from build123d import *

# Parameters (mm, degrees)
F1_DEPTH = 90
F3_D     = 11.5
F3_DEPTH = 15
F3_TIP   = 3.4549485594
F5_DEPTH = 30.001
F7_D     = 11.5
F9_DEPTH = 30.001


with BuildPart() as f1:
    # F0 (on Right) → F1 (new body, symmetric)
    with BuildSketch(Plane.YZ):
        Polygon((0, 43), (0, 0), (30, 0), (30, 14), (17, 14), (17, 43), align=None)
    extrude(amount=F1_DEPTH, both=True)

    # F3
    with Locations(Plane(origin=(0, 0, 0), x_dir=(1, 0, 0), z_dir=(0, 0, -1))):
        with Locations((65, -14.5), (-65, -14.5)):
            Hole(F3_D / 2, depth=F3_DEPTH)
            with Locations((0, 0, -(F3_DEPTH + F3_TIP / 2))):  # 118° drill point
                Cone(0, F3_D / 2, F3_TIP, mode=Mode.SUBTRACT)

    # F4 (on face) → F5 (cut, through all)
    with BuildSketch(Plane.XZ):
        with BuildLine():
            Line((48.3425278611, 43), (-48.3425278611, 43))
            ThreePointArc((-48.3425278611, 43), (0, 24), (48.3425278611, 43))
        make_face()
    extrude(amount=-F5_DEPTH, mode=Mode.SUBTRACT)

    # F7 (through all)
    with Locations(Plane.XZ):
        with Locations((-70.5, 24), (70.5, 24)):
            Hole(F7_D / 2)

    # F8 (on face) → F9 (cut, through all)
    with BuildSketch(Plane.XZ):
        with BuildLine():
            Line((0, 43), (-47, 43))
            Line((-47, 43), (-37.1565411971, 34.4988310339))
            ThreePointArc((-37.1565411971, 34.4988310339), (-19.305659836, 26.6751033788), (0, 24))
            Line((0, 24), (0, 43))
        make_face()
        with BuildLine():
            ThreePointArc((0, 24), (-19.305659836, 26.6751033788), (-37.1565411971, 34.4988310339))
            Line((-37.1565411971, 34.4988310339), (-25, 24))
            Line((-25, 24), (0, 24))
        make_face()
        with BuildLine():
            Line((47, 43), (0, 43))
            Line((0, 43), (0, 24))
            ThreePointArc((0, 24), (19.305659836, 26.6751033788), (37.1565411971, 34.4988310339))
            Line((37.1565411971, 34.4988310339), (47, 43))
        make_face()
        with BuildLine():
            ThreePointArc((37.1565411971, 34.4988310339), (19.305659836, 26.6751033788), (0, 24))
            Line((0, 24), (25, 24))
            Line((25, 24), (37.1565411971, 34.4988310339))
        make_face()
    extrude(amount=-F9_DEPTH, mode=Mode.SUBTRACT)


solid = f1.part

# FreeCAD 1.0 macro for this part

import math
import FreeCAD as App
import Part
import Sketcher

V = App.Vector


def add_polygon(sketch, points):
    """Adds a closed chain of lines whose ends are joined by coincident constraints."""
    first, n = sketch.GeometryCount, len(points)
    for a, b in zip(points, points[1:] + points[:1]):
        sketch.addGeometry(Part.LineSegment(App.Vector(*a, 0), App.Vector(*b, 0)), False)
    for i in range(n):
        sketch.addConstraint(Sketcher.Constraint("Coincident", first + i, 2, first + (i + 1) % n, 1))

doc = App.newDocument("Part")
body = doc.addObject("PartDesign::Body", "Body")

# Sketch on YZ plane
sketch1 = body.newObject("Sketcher::SketchObject", "Sketch")
sketch1.AttachmentSupport = (doc.getObject("YZ_Plane"), [""])
sketch1.MapMode = "FlatFace"
add_polygon(sketch1, [(0, 43), (0, 0), (30, 0), (30, 14), (17, 14), (17, 43)])  # lines 0-5
sketch1.addConstraint([
    Sketcher.Constraint("Vertical", 0),
    Sketcher.Constraint("Horizontal", 1),
    Sketcher.Constraint("Vertical", 2),
    Sketcher.Constraint("Horizontal", 3),
    Sketcher.Constraint("Vertical", 4),
    Sketcher.Constraint("Horizontal", 5),
    Sketcher.Constraint("Coincident", 0, 2, -1, 1),
    Sketcher.Constraint("DistanceX", 1, 1, 1, 2, 30.0),
    Sketcher.Constraint("DistanceX", 3, 2, 3, 1, 13.0),
    Sketcher.Constraint("DistanceY", 0, 2, 0, 1, 43.0),
    Sketcher.Constraint("DistanceY", 2, 1, 2, 2, 14.0),
])
pad1 = body.newObject("PartDesign::Pad", "Pad")
pad1.Profile = sketch1
pad1.Length = 180
pad1.Midplane = True

# Sketch on XY plane
sketch2 = body.newObject("Sketcher::SketchObject", "Sketch001")
sketch2.AttachmentSupport = (doc.getObject("XY_Plane"), [""])
sketch2.MapMode = "FlatFace"
sketch2.addGeometry([
    Part.Circle(V(65, 14.5, 0), V(0, 0, 1), 5.75),
    Part.Circle(V(-65, 14.5, 0), V(0, 0, 1), 5.75),
], False)
sketch2.addConstraint([
    Sketcher.Constraint("Equal", 0, 1),
    Sketcher.Constraint("Symmetric", 0, 3, 1, 3, -2),
    Sketcher.Constraint("Diameter", 0, 11.5),
    Sketcher.Constraint("DistanceX", -1, 1, 0, 3, 65.0),
    Sketcher.Constraint("DistanceY", -1, 1, 0, 3, 14.5),
])
doc.recompute()
hole = body.newObject("PartDesign::Hole", "Hole")
hole.Profile = sketch2
hole.ThreadType = "None"
hole.Diameter = 11.5
hole.DepthType = "Dimension"
hole.Depth = 15
hole.DrillPoint = "Angled"
hole.DrillPointAngle = 118
hole.Reversed = True

# Sketch on XZ plane
sketch3 = body.newObject("Sketcher::SketchObject", "Sketch002")
sketch3.AttachmentSupport = (doc.getObject("XZ_Plane"), [""])
sketch3.MapMode = "FlatFace"
sketch3.addGeometry([
    Part.LineSegment(V(48.342528, 43, 0), V(-48.342528, 43, 0)),
    Part.ArcOfCircle(Part.Circle(V(0, 95, 0), V(0, 0, 1), 71), math.radians(-132.9125), math.radians(-47.0875)),
], False)
sketch3.addConstraint([
    Sketcher.Constraint("Coincident", 0, 1, 1, 2),
    Sketcher.Constraint("Coincident", 1, 1, 0, 2),
    Sketcher.Constraint("Horizontal", 0),
    Sketcher.Constraint("PointOnObject", 1, 3, -2),
    Sketcher.Constraint("Radius", 1, 71.0),
    Sketcher.Constraint("DistanceY", -1, 1, 1, 3, 95.0),
    Sketcher.Constraint("DistanceY", -1, 1, 0, 1, 43.0),
])
pocket1 = body.newObject("PartDesign::Pocket", "Pocket")
pocket1.Profile = sketch3
pocket1.Type = "ThroughAll"

# Sketch on XZ plane
sketch4 = body.newObject("Sketcher::SketchObject", "Sketch003")
sketch4.AttachmentSupport = (doc.getObject("XZ_Plane"), [""])
sketch4.MapMode = "FlatFace"
sketch4.addGeometry([
    Part.Circle(V(-70.5, 24, 0), V(0, 0, 1), 5.75),
    Part.Circle(V(70.5, 24, 0), V(0, 0, 1), 5.75),
], False)
sketch4.addConstraint([
    Sketcher.Constraint("Equal", 0, 1),
    Sketcher.Constraint("Symmetric", 0, 3, 1, 3, -2),
    Sketcher.Constraint("Diameter", 0, 11.5),
    Sketcher.Constraint("DistanceY", -1, 1, 0, 3, 24.0),
    Sketcher.Constraint("DistanceX", 0, 3, 1, 3, 141.0),
])
doc.recompute()
hole2 = body.newObject("PartDesign::Hole", "Hole001")
hole2.Profile = sketch4
hole2.ThreadType = "None"
hole2.Diameter = 11.5
hole2.DepthType = "ThroughAll"

# Sketch on XZ plane
sketch5 = body.newObject("Sketcher::SketchObject", "Sketch004")
sketch5.AttachmentSupport = (doc.getObject("XZ_Plane"), [""])
sketch5.MapMode = "FlatFace"
add_polygon(sketch5, [(-47, 43), (-37.156541, 34.498831), (-25, 24), (25, 24), (37.156541, 34.498831), (47, 43)])  # lines 0-5
sketch5.addConstraint([
    Sketcher.Constraint("Horizontal", 2),
    Sketcher.Constraint("Horizontal", 5),
    Sketcher.Constraint("Symmetric", 0, 2, 3, 2, -2),
    Sketcher.Constraint("Parallel", 0, 1),
    Sketcher.Constraint("Parallel", 3, 4),
    Sketcher.Constraint("Equal", 1, 3),
    Sketcher.Constraint("DistanceX", 2, 1, 2, 2, 50.0),
    Sketcher.Constraint("DistanceX", 5, 2, 5, 1, 94.0),
    Sketcher.Constraint("DistanceY", -1, 1, 1, 2, 24.0),
    Sketcher.Constraint("DistanceY", -1, 1, 4, 2, 43.0),
    Sketcher.Constraint("Distance", 0, 13.006289),
])
pocket2 = body.newObject("PartDesign::Pocket", "Pocket001")
pocket2.Profile = sketch5
pocket2.Type = "ThroughAll"

doc.recompute()
